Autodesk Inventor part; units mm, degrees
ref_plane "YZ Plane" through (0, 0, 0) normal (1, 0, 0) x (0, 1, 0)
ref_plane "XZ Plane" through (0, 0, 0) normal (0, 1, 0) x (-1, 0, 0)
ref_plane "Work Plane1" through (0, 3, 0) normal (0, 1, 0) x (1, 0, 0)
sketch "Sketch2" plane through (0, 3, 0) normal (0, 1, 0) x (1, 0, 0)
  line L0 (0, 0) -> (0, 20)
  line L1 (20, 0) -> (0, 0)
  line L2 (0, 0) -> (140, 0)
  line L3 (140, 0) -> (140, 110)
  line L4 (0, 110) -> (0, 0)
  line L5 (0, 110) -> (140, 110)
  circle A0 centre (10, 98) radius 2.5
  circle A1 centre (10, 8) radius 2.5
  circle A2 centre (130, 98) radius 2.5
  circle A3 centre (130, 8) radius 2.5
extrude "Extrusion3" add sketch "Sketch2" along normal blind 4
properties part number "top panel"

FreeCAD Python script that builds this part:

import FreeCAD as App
import Part
import Sketcher
Q = App.Units.Quantity

doc = App.newDocument("Part")
body = doc.addObject("PartDesign::Body", "Body")

sketch1 = doc.addObject("Sketcher::SketchObject", "Sketch")
body.addObject(sketch1)
sketch1.AttachmentSupport = (doc.XZ_Plane, [""])
sketch1.MapMode = "FlatFace"
sketch1.AttachmentOffset = App.Placement(App.Vector(0, 0, -3), App.Rotation())
sketch1.addGeometry([
    Part.LineSegment(App.Vector(0, -110, 0), App.Vector(0, 0, 0)),
    Part.LineSegment(App.Vector(0, 0, 0), App.Vector(140, 0, 0)),
    Part.LineSegment(App.Vector(140, 0, 0), App.Vector(140, -110, 0)),
    Part.LineSegment(App.Vector(140, -110, 0), App.Vector(0, -110, 0)),
    Part.Circle(App.Vector(10, -8, 0), App.Vector(0, 0, 1), 2.5),
    Part.Circle(App.Vector(130, -8, 0), App.Vector(0, 0, 1), 2.5),
    Part.Circle(App.Vector(10, -98, 0), App.Vector(0, 0, 1), 2.5),
    Part.Circle(App.Vector(130, -98, 0), App.Vector(0, 0, 1), 2.5),
], False)
sketch1.addConstraint([
    Sketcher.Constraint("Coincident", 0, 2, 1, 1),
    Sketcher.Constraint("Coincident", 1, 2, 2, 1),
    Sketcher.Constraint("Coincident", 2, 2, 3, 1),
    Sketcher.Constraint("Coincident", 3, 2, 0, 1),
    Sketcher.Constraint("Vertical", 0),
    Sketcher.Constraint("Horizontal", 1),
    Sketcher.Constraint("Vertical", 2),
    Sketcher.Constraint("Horizontal", 3),
    Sketcher.Constraint("Coincident", 0, 2, -1, 1),
    Sketcher.Constraint("Equal", 4, 5),
    Sketcher.Constraint("Equal", 5, 6),
    Sketcher.Constraint("Equal", 6, 7),
    Sketcher.Constraint("Horizontal", 4, 3, 5, 3),
    Sketcher.Constraint("Horizontal", 6, 3, 7, 3),
    Sketcher.Constraint("Vertical", 4, 3, 6, 3),
    Sketcher.Constraint("Vertical", 5, 3, 7, 3),
    Sketcher.Constraint("Diameter", 4, Q("5 mm")),
    Sketcher.Constraint("DistanceX", 1, 1, 1, 2, Q("140 mm")),
    Sketcher.Constraint("DistanceY", 0, 1, 0, 2, Q("110 mm")),
    Sketcher.Constraint("DistanceX", -1, 1, 4, 3, Q("10 mm")),
    Sketcher.Constraint("DistanceY", 4, 3, -1, 1, Q("8 mm")),
    Sketcher.Constraint("DistanceX", -1, 1, 5, 3, Q("130 mm")),
    Sketcher.Constraint("DistanceY", 6, 3, -1, 1, Q("98 mm")),
])
pad1 = doc.addObject("PartDesign::Pad", "Pad")
body.addObject(pad1)
pad1.Profile = sketch1
pad1.Length = 4
pad1.Reversed = True

doc.recompute()
